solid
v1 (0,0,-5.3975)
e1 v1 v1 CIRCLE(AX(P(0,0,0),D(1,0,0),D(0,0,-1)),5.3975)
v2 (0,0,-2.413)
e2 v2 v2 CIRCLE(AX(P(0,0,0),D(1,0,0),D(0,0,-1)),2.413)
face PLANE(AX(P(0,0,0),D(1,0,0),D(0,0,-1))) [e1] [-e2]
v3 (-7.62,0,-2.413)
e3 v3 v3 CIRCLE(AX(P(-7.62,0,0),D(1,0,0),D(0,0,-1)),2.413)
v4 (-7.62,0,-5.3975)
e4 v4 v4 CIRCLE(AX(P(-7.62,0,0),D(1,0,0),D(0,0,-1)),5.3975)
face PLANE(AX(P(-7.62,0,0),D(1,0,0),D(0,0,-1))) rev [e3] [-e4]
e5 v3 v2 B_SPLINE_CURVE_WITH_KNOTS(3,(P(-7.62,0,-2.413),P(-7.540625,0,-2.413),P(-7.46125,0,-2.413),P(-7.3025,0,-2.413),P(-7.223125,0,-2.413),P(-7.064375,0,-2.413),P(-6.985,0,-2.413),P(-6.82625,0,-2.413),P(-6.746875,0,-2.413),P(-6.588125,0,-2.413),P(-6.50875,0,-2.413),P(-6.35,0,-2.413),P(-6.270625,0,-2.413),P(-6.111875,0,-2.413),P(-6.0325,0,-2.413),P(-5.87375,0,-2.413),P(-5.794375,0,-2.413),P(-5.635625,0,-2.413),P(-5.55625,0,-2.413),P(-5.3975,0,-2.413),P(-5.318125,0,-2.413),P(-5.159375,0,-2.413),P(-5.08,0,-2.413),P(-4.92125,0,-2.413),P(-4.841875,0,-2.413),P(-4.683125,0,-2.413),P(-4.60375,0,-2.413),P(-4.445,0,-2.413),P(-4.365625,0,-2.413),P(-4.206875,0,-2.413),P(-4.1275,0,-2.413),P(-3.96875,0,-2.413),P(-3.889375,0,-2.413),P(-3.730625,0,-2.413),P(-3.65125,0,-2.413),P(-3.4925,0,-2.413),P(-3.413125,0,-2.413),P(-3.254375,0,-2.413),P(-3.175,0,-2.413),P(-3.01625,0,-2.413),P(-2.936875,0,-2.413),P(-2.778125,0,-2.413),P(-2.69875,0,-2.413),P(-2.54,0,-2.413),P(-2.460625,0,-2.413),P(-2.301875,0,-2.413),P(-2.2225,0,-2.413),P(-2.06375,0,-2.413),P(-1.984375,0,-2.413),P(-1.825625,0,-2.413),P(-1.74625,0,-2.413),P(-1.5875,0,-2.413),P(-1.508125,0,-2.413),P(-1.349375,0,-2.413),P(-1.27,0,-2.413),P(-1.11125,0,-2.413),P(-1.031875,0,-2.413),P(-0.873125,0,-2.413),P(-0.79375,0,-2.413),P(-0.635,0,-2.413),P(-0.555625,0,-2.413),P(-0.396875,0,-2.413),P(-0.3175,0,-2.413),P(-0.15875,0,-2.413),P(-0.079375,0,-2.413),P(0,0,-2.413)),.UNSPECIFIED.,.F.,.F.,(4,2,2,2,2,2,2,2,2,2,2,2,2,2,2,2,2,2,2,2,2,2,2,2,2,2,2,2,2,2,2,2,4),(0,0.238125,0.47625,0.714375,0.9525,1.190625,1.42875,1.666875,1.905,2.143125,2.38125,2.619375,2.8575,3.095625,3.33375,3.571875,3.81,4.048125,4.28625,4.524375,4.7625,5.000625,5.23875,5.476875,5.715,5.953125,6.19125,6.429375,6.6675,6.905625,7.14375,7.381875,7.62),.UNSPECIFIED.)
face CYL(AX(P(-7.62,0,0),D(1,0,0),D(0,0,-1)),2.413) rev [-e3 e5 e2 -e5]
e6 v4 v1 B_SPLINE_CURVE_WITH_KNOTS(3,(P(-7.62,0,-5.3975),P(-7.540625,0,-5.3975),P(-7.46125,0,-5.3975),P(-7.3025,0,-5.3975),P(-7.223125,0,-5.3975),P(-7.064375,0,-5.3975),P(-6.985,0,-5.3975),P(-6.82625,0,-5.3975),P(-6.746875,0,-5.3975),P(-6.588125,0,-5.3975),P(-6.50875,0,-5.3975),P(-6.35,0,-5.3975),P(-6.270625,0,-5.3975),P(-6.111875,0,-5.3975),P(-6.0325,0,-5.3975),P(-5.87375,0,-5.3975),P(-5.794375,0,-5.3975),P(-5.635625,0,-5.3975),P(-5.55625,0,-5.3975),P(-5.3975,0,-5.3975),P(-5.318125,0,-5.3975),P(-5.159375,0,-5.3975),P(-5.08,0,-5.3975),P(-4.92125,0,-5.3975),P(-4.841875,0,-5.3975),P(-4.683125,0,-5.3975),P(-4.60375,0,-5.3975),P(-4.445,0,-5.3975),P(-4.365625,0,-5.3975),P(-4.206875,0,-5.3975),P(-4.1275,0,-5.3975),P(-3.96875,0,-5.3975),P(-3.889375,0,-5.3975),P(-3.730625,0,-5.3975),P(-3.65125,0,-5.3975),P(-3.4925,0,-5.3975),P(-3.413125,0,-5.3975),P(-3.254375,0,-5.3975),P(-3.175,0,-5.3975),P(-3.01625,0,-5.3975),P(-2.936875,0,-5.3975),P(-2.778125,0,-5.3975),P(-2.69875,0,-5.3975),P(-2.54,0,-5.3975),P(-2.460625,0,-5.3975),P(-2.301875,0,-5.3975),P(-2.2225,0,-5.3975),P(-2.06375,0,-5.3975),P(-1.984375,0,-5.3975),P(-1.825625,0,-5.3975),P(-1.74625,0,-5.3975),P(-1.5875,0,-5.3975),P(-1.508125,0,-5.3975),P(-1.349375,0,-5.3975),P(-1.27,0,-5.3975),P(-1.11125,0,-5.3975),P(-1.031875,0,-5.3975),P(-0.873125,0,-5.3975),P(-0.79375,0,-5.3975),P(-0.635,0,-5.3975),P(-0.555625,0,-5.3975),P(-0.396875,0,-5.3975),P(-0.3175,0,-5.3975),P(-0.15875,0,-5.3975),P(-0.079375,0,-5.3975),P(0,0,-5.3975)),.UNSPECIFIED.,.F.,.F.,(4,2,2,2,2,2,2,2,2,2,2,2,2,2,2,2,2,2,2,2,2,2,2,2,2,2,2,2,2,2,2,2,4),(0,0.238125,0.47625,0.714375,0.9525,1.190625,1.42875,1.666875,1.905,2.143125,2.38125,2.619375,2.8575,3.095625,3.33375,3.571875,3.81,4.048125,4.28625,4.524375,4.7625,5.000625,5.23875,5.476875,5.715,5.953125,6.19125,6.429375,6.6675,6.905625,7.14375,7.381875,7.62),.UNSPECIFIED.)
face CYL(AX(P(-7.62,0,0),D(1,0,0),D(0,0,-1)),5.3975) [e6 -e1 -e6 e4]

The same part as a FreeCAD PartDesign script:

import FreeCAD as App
import Part
import Sketcher
from FreeCAD import Vector
Q = App.Units.Quantity

doc = App.newDocument("Part")
body = doc.addObject("PartDesign::Body", "Body")

sketch1 = body.newObject("Sketcher::SketchObject", "Sketch")
sketch1.AttachmentSupport = (doc.getObject("YZ_Plane"), [""])
sketch1.MapMode = "FlatFace"
sketch1.addGeometry(Part.Circle(Vector(0, 0, 0), Vector(0, 0, 1), 5.3975), False)
sketch1.addGeometry(Part.Circle(Vector(0, 0, 0), Vector(0, 0, 1), 2.413), False)
sketch1.addConstraint(Sketcher.Constraint("Coincident", 0, 3, -1, 1))
sketch1.addConstraint(Sketcher.Constraint("Coincident", 1, 3, -1, 1))
sketch1.addConstraint(Sketcher.Constraint("Diameter", 1, Q("0.19 in")))
sketch1.addConstraint(Sketcher.Constraint("Diameter", 0, Q("0.425 in")))
pad1 = body.newObject("PartDesign::Pad", "Pad")
pad1.Profile = sketch1
pad1.Length = Q("0.3 in")
pad1.Reversed = True

doc.recompute()
